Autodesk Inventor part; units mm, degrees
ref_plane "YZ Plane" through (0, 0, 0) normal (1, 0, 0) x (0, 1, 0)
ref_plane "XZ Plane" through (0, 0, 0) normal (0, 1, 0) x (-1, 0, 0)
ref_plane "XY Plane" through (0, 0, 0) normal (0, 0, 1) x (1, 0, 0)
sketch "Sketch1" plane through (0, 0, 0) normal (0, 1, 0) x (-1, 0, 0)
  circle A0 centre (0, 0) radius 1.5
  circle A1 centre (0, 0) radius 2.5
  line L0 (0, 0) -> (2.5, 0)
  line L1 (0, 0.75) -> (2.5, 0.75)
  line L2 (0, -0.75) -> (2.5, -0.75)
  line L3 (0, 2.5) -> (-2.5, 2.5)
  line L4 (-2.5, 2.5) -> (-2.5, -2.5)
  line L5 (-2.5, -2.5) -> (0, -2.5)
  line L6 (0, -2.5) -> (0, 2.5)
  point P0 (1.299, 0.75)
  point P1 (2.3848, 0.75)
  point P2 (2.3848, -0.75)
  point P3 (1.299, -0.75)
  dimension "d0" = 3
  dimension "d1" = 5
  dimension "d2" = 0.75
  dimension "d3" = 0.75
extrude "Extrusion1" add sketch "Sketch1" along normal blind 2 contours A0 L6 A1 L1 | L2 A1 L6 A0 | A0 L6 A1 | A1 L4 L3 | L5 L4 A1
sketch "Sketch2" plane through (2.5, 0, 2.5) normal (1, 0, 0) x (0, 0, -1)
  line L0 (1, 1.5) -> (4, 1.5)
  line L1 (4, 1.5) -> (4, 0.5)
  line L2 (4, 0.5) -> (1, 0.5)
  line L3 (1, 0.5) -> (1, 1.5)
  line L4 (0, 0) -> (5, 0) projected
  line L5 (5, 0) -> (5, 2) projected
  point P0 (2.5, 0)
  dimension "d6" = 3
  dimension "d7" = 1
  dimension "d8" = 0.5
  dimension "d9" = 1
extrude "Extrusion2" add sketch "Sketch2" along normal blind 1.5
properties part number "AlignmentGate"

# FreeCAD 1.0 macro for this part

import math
import FreeCAD as App
import Part
import Sketcher

V = App.Vector
Q = App.Units.Quantity

doc = App.newDocument("Part")
body = doc.addObject("PartDesign::Body", "Body")

# Sketch on XZ plane
sketch1 = doc.addObject("Sketcher::SketchObject", "Sketch")
body.addObject(sketch1)
sketch1.AttachmentSupport = (doc.XZ_Plane, [""])
sketch1.MapMode = "FlatFace"
sketch1.addGeometry(Part.LineSegment(V(-1.299038, 0.75, 0), V(-2.384848, 0.75, 0)), False)
sketch1.addGeometry(Part.ArcOfCircle(Part.Circle(V(0, 0, 0), V(0, 0, 1), 2.5), math.radians(90), math.radians(162.542397)), False)
sketch1.addGeometry(Part.LineSegment(V(0, 2.5, 0), V(2.5, 2.5, 0)), False)
sketch1.addGeometry(Part.LineSegment(V(2.5, 2.5, 0), V(2.5, -2.5, 0)), False)
sketch1.addGeometry(Part.LineSegment(V(2.5, -2.5, 0), V(0, -2.5, 0)), False)
sketch1.addGeometry(Part.ArcOfCircle(Part.Circle(V(0, 0, 0), V(0, 0, 1), 2.5), math.radians(-162.542397), math.radians(-90)), False)
sketch1.addGeometry(Part.LineSegment(V(-2.384848, -0.75, 0), V(-1.299038, -0.75, 0)), False)
sketch1.addGeometry(Part.ArcOfCircle(Part.Circle(V(0, 0, 0), V(0, 0, 1), 1.5), math.radians(-150), math.radians(150)), False)
sketch1.addConstraint(Sketcher.Constraint("Coincident", 0, 2, 1, 2))
sketch1.addConstraint(Sketcher.Constraint("Tangent", 1, 1, 2, 1))
sketch1.addConstraint(Sketcher.Constraint("Coincident", 2, 2, 3, 1))
sketch1.addConstraint(Sketcher.Constraint("Coincident", 3, 2, 4, 1))
sketch1.addConstraint(Sketcher.Constraint("Tangent", 4, 2, 5, 2))
sketch1.addConstraint(Sketcher.Constraint("Coincident", 5, 1, 6, 1))
sketch1.addConstraint(Sketcher.Constraint("Coincident", 6, 2, 7, 1))
sketch1.addConstraint(Sketcher.Constraint("Coincident", 7, 2, 0, 1))
sketch1.addConstraint(Sketcher.Constraint("Horizontal", 0))
sketch1.addConstraint(Sketcher.Constraint("Horizontal", 2))
sketch1.addConstraint(Sketcher.Constraint("Vertical", 3))
sketch1.addConstraint(Sketcher.Constraint("Horizontal", 4))
sketch1.addConstraint(Sketcher.Constraint("Horizontal", 6))
sketch1.addConstraint(Sketcher.Constraint("Coincident", 1, 3, -1, 1))
sketch1.addConstraint(Sketcher.Constraint("Coincident", 5, 3, -1, 1))
sketch1.addConstraint(Sketcher.Constraint("Coincident", 7, 3, -1, 1))
sketch1.addConstraint(Sketcher.Constraint("Equal", 1, 5))
sketch1.addConstraint(Sketcher.Constraint("Vertical", 0, 2, 5, 1))
sketch1.addConstraint(Sketcher.Constraint("Radius", 1, Q("2.5 mm")))
sketch1.addConstraint(Sketcher.Constraint("Radius", 7, Q("1.5 mm")))
sketch1.addConstraint(Sketcher.Constraint("DistanceY", -1, 1, 0, 2, Q("0.75 mm")))
sketch1.addConstraint(Sketcher.Constraint("DistanceX", 2, 1, 2, 2, Q("2.5 mm")))
pad1 = doc.addObject("PartDesign::Pad", "Pad")
body.addObject(pad1)
pad1.Profile = sketch1
pad1.Length = 2
pad1.Reversed = True

# Sketch on YZ plane
sketch2 = doc.addObject("Sketcher::SketchObject", "Sketch001")
body.addObject(sketch2)
sketch2.AttachmentSupport = (doc.YZ_Plane, [""])
sketch2.MapMode = "FlatFace"
sketch2.AttachmentOffset = App.Placement(V(0, 0, 2.5), App.Rotation())
sketch2.addGeometry(Part.LineSegment(V(1.5, -1.5, 0), V(1.5, 1.5, 0)), False)
sketch2.addGeometry(Part.LineSegment(V(1.5, 1.5, 0), V(0.5, 1.5, 0)), False)
sketch2.addGeometry(Part.LineSegment(V(0.5, 1.5, 0), V(0.5, -1.5, 0)), False)
sketch2.addGeometry(Part.LineSegment(V(0.5, -1.5, 0), V(1.5, -1.5, 0)), False)
sketch2.addConstraint(Sketcher.Constraint("Coincident", 0, 2, 1, 1))
sketch2.addConstraint(Sketcher.Constraint("Coincident", 1, 2, 2, 1))
sketch2.addConstraint(Sketcher.Constraint("Coincident", 2, 2, 3, 1))
sketch2.addConstraint(Sketcher.Constraint("Coincident", 3, 2, 0, 1))
sketch2.addConstraint(Sketcher.Constraint("Vertical", 0))
sketch2.addConstraint(Sketcher.Constraint("Horizontal", 1))
sketch2.addConstraint(Sketcher.Constraint("Vertical", 2))
sketch2.addConstraint(Sketcher.Constraint("Horizontal", 3))
sketch2.addConstraint(Sketcher.Constraint("DistanceX", 1, 2, 1, 1, Q("1 mm")))
sketch2.addConstraint(Sketcher.Constraint("DistanceY", 0, 1, 0, 2, Q("3 mm")))
sketch2.addConstraint(Sketcher.Constraint("DistanceX", -1, 1, 1, 2, Q("0.5 mm")))
sketch2.addConstraint(Sketcher.Constraint("DistanceY", -1, 1, 0, 2, Q("1.5 mm")))
pad2 = doc.addObject("PartDesign::Pad", "Pad001")
body.addObject(pad2)
pad2.Profile = sketch2
pad2.Length = 1.5

doc.recompute()
